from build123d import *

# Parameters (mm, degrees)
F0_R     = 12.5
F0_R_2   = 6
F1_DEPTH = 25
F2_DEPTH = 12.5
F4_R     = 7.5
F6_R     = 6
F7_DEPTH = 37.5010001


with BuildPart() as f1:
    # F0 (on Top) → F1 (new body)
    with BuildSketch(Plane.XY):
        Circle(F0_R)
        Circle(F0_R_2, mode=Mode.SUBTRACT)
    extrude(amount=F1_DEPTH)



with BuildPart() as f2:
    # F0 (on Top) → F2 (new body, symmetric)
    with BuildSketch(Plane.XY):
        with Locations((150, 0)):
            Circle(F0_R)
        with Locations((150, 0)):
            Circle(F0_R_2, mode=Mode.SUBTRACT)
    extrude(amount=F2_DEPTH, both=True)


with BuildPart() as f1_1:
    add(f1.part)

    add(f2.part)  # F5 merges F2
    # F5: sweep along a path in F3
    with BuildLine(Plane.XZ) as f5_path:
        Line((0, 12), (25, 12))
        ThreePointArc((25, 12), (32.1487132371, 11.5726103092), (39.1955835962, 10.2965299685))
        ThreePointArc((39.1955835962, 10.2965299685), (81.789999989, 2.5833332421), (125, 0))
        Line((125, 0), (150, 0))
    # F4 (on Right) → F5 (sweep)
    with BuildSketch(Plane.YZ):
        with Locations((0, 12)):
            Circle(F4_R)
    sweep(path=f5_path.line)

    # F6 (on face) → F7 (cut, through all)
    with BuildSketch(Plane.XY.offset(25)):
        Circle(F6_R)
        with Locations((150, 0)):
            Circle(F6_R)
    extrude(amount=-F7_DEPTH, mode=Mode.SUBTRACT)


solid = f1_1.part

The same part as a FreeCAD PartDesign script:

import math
import FreeCAD as App
import Part
import Sketcher

doc = App.newDocument("Part")
body = doc.addObject("PartDesign::Body", "Body")

# Sketch on XY plane
sketch1 = body.newObject("Sketcher::SketchObject", "Sketch")
sketch1.AttachmentSupport = (doc.getObject("XY_Plane"), [""])
sketch1.MapMode = "FlatFace"
sketch1.addGeometry(Part.Circle(App.Vector(0, 0, 0), App.Vector(0, 0, 1), 12), False)
sketch1.addGeometry(Part.Circle(App.Vector(0, 0, 0), App.Vector(0, 0, 1), 6), False)
sketch1.addConstraint(Sketcher.Constraint("Coincident", 0, 3, -1, 1))
sketch1.addConstraint(Sketcher.Constraint("Coincident", 1, 3, -1, 1))
sketch1.addConstraint(Sketcher.Constraint("Diameter", 0, 25.0))
sketch1.addConstraint(Sketcher.Constraint("Diameter", 1, 12.0))
pad1 = body.newObject("PartDesign::Pad", "Pad")
pad1.Profile = sketch1
pad1.Length = 25
body2 = doc.addObject("PartDesign::Body", "Body001")

# Sketch on XY plane
sketch2 = body2.newObject("Sketcher::SketchObject", "Sketch001")
sketch2.AttachmentSupport = (doc.getObject("XY_Plane001"), [""])
sketch2.MapMode = "FlatFace"
sketch2.addGeometry(Part.Circle(App.Vector(150, 0, 0), App.Vector(0, 0, 1), 12), False)
sketch2.addGeometry(Part.Circle(App.Vector(150, 0, 0), App.Vector(0, 0, 1), 6), False)
sketch2.addConstraint(Sketcher.Constraint("Coincident", 1, 3, 0, 3))
sketch2.addConstraint(Sketcher.Constraint("PointOnObject", 0, 3, -1))
sketch2.addConstraint(Sketcher.Constraint("Diameter", 0, 25.0))
sketch2.addConstraint(Sketcher.Constraint("Diameter", 1, 12.0))
sketch2.addConstraint(Sketcher.Constraint("DistanceX", -1, 1, 0, 3, 150.0))
pad2 = body2.newObject("PartDesign::Pad", "Pad001")
pad2.Profile = sketch2
pad2.Length = 25
pad2.Midplane = True
body.AllowCompound = True
doc.recompute()

boolean = body.newObject("PartDesign::Boolean", "Boolean")
boolean.Type = "Fuse"
boolean.addObjects([body2])

# Sketch on YZ plane
sketch3 = body.newObject("Sketcher::SketchObject", "Sketch002")
sketch3.AttachmentSupport = (doc.getObject("YZ_Plane"), [""])
sketch3.MapMode = "FlatFace"
sketch3.addGeometry(Part.Circle(App.Vector(0, 12, 0), App.Vector(0, 0, 1), 8), False)
sketch3.addConstraint(Sketcher.Constraint("PointOnObject", 0, 3, -2))
sketch3.addConstraint(Sketcher.Constraint("Diameter", 0, 15.0))
sketch3.addConstraint(Sketcher.Constraint("DistanceY", -1, 1, 0, 3, 12.0))

# Sketch on XZ plane
sketch4 = body.newObject("Sketcher::SketchObject", "Sketch003")
sketch4.AttachmentSupport = (doc.getObject("XZ_Plane"), [""])
sketch4.MapMode = "FlatFace"
sketch4.addGeometry(Part.LineSegment(App.Vector(0, 12, 0), App.Vector(25, 12, 0)), False)
sketch4.addGeometry(Part.ArcOfCircle(Part.Circle(App.Vector(25, -48, 0), App.Vector(0, 0, 1), 60), math.radians(76.31), math.radians(90)), False)
sketch4.addGeometry(Part.ArcOfCircle(Part.Circle(App.Vector(125, 363, 0), App.Vector(0, 0, 1), 363), math.radians(-103.69), math.radians(-90)), False)
sketch4.addGeometry(Part.LineSegment(App.Vector(125, 0, 0), App.Vector(150, 0, 0)), False)
sketch4.addConstraint(Sketcher.Constraint("Tangent", 0, 2, 1, 2))
sketch4.addConstraint(Sketcher.Constraint("Tangent", 1, 1, 2, 1))
sketch4.addConstraint(Sketcher.Constraint("Tangent", 2, 2, 3, 1))
sketch4.addConstraint(Sketcher.Constraint("Horizontal", 0))
sketch4.addConstraint(Sketcher.Constraint("Horizontal", 3))
sketch4.addConstraint(Sketcher.Constraint("PointOnObject", 0, 1, -2))
sketch4.addConstraint(Sketcher.Constraint("PointOnObject", 2, 2, -1))
sketch4.addConstraint(Sketcher.Constraint("Equal", 0, 3))
sketch4.addConstraint(Sketcher.Constraint("Radius", 1, 60.0))
sketch4.addConstraint(Sketcher.Constraint("DistanceX", 0, 1, 0, 2, 25.0))
sketch4.addConstraint(Sketcher.Constraint("DistanceY", 1, 3, -1, 1, 48.0))
sketch4.addConstraint(Sketcher.Constraint("DistanceX", -1, 1, 2, 3, 125.0))
doc.recompute()

additivepipe = body.newObject("PartDesign::AdditivePipe", "AdditivePipe")
additivepipe.Profile = sketch3
additivepipe.Spine = (sketch4, ["Edge1", "Edge2", "Edge3", "Edge4"])

# Sketch on XY plane
sketch5 = body.newObject("Sketcher::SketchObject", "Sketch004")
sketch5.AttachmentSupport = (doc.getObject("XY_Plane"), [""])
sketch5.MapMode = "FlatFace"
sketch5.AttachmentOffset = App.Placement(App.Vector(0, 0, 25), App.Rotation())
sketch5.addGeometry(Part.Circle(App.Vector(0, 0, 0), App.Vector(0, 0, 1), 6), False)
sketch5.addGeometry(Part.Circle(App.Vector(150, 0, 0), App.Vector(0, 0, 1), 6), False)
sketch5.addConstraint(Sketcher.Constraint("Coincident", 0, 3, -1, 1))
sketch5.addConstraint(Sketcher.Constraint("Equal", 0, 1))
sketch5.addConstraint(Sketcher.Constraint("PointOnObject", 1, 3, -1))
sketch5.addConstraint(Sketcher.Constraint("Diameter", 0, 12.0))
sketch5.addConstraint(Sketcher.Constraint("DistanceX", -1, 1, 1, 3, 150.0))
pocket1 = body.newObject("PartDesign::Pocket", "Pocket")
pocket1.Profile = sketch5
pocket1.Type = "ThroughAll"

doc.recompute()
